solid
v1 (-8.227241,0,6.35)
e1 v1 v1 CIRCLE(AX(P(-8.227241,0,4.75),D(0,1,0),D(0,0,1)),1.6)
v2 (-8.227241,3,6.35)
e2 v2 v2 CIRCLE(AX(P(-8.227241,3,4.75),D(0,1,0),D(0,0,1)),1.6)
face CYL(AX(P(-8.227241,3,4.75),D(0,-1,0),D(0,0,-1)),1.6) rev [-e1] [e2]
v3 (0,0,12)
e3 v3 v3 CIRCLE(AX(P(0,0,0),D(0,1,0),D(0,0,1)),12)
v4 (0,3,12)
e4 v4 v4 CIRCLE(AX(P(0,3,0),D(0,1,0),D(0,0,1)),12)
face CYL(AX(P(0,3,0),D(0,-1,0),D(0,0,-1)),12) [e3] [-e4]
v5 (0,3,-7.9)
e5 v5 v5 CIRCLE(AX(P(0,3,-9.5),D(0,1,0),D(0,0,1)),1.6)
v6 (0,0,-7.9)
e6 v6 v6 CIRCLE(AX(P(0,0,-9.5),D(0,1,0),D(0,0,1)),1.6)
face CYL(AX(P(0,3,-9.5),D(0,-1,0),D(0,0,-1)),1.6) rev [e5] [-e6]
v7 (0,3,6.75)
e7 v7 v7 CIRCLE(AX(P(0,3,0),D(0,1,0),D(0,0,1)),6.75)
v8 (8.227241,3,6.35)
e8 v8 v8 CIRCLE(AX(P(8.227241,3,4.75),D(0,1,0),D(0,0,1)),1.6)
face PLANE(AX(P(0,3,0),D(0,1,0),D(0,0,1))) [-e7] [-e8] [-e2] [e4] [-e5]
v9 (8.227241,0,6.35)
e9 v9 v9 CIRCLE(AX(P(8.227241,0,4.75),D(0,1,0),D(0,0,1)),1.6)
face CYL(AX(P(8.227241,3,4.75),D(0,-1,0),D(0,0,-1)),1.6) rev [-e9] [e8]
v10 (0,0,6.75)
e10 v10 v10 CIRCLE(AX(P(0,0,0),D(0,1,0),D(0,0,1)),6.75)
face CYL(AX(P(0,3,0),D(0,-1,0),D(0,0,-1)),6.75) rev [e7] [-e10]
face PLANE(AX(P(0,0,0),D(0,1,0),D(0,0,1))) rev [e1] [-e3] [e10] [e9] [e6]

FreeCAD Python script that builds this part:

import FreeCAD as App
import Part
import Sketcher
from FreeCAD import Vector

doc = App.newDocument("Part")
body = doc.addObject("PartDesign::Body", "Body")

sketch1 = doc.addObject("Sketcher::SketchObject", "Sketch")
body.addObject(sketch1)
sketch1.AttachmentSupport = (doc.XZ_Plane, [""])
sketch1.MapMode = "FlatFace"
sketch1.addGeometry(Part.Circle(Vector(0, 0, 0), Vector(0, 0, 1), 12), False)
sketch1.addGeometry(Part.Circle(Vector(0, -9.5, 0), Vector(0, 0, 1), 1.6), False)
sketch1.addGeometry(Part.Circle(Vector(-8.227241, 4.75, 0), Vector(0, 0, 1), 1.6), False)
sketch1.addGeometry(Part.Circle(Vector(0, 0, 0), Vector(0, 0, 1), 6.75), False)
sketch1.addGeometry(Part.Circle(Vector(8.227241, 4.75, 0), Vector(0, 0, 1), 1.6), False)
sketch1.addConstraint(Sketcher.Constraint("Coincident", 0, 3, -1, 1))
sketch1.addConstraint(Sketcher.Constraint("Coincident", 3, 3, -1, 1))
sketch1.addConstraint(Sketcher.Constraint("Equal", 1, 2))
sketch1.addConstraint(Sketcher.Constraint("Equal", 2, 4))
sketch1.addConstraint(Sketcher.Constraint("Symmetric", 2, 3, 4, 3, -2))
sketch1.addConstraint(Sketcher.Constraint("PointOnObject", 1, 3, -2))
sketch1.addConstraint(Sketcher.Constraint("Diameter", 0, 24.0))
sketch1.addConstraint(Sketcher.Constraint("Diameter", 1, 3.2))
sketch1.addConstraint(Sketcher.Constraint("Diameter", 3, 13.5))
sketch1.addConstraint(Sketcher.Constraint("DistanceY", 1, 3, -1, 1, 9.5))
sketch1.addConstraint(Sketcher.Constraint("DistanceY", -1, 1, 2, 3, 4.75))
sketch1.addConstraint(Sketcher.Constraint("DistanceX", 2, 3, -1, 1, 8.227241))
pad1 = doc.addObject("PartDesign::Pad", "Pad")
body.addObject(pad1)
pad1.Profile = sketch1
pad1.Length = 3
pad1.Reversed = True

doc.recompute()
